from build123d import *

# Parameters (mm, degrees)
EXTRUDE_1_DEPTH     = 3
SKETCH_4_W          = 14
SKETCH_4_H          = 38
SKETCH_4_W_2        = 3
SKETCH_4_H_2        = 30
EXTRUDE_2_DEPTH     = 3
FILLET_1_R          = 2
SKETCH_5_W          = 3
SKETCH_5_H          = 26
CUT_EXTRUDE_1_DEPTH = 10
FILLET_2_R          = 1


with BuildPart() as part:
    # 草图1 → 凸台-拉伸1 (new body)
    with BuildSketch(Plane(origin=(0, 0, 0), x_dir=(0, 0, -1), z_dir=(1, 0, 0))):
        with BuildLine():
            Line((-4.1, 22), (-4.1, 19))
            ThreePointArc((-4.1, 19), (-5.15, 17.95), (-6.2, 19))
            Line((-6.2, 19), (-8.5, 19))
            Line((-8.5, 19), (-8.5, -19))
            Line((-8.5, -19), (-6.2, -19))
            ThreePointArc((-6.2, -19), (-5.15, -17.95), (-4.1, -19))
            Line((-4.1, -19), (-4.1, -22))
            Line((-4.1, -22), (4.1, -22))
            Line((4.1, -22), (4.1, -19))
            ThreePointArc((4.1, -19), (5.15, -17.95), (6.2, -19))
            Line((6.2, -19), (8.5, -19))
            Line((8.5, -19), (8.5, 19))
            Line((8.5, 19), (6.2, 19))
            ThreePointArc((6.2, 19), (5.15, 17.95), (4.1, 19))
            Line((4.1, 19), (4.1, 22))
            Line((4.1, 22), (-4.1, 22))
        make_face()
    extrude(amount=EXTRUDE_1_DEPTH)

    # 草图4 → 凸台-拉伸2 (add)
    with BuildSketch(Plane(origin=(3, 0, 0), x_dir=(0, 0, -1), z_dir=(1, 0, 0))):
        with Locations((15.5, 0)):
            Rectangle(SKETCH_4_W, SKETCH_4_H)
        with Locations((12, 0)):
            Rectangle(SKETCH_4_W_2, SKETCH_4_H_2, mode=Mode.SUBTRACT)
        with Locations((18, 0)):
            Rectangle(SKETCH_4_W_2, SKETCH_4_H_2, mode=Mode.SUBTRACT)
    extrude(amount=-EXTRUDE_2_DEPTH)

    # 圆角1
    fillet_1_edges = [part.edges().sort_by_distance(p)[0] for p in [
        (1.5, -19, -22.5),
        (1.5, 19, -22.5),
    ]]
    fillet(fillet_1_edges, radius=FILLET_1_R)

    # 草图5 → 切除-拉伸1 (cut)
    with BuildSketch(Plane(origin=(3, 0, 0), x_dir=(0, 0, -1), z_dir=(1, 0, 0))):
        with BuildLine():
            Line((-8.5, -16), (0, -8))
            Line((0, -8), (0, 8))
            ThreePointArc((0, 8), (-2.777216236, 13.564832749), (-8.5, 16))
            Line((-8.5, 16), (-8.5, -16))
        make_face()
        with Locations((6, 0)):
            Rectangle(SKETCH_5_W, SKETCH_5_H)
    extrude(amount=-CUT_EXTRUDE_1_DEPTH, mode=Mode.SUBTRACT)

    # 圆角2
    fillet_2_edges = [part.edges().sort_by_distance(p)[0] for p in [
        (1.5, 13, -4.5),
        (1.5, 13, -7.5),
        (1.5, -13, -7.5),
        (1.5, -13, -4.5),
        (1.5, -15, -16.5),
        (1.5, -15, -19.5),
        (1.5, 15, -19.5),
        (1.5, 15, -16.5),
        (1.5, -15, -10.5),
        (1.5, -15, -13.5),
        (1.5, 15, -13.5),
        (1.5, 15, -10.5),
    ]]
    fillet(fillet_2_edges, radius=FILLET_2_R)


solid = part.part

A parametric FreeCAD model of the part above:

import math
import FreeCAD as App
import Part
import Sketcher


def edges_at(feature, points):
    """Names of the edges that pass closest to the given points."""
    edges = feature.Shape.Edges
    near = lambda p: min(range(len(edges)), key=lambda i: edges[i].distToShape(Part.Vertex(*p))[0])
    return sorted({f"Edge{near(p) + 1}" for p in points})

doc = App.newDocument("Part")
body = doc.addObject("PartDesign::Body", "Body")

sketch1 = doc.addObject("Sketcher::SketchObject", "Sketch")
body.addObject(sketch1)
sketch1.AttachmentSupport = (doc.YZ_Plane, [""])
sketch1.MapMode = "FlatFace"
sketch1.addGeometry(Part.LineSegment(App.Vector(22, 4.1, 0), App.Vector(19, 4.1, 0)), False)
sketch1.addGeometry(Part.ArcOfCircle(Part.Circle(App.Vector(19, 5.2, 0), App.Vector(0, 0, 1), 1.1), math.radians(90), math.radians(270)), False)
sketch1.addGeometry(Part.LineSegment(App.Vector(19, 6.2, 0), App.Vector(19, 8.5, 0)), False)
sketch1.addGeometry(Part.LineSegment(App.Vector(19, 8.5, 0), App.Vector(-19, 8.5, 0)), False)
sketch1.addGeometry(Part.LineSegment(App.Vector(-19, 8.5, 0), App.Vector(-19, 6.2, 0)), False)
sketch1.addGeometry(Part.ArcOfCircle(Part.Circle(App.Vector(-19, 5.2, 0), App.Vector(0, 0, 1), 1.1), math.radians(-90), math.radians(90)), False)
sketch1.addGeometry(Part.LineSegment(App.Vector(-19, 4.1, 0), App.Vector(-22, 4.1, 0)), False)
sketch1.addGeometry(Part.LineSegment(App.Vector(-22, 4.1, 0), App.Vector(-22, -4.1, 0)), False)
sketch1.addGeometry(Part.LineSegment(App.Vector(-22, -4.1, 0), App.Vector(-19, -4.1, 0)), False)
sketch1.addGeometry(Part.ArcOfCircle(Part.Circle(App.Vector(-19, -5.2, 0), App.Vector(0, 0, 1), 1.1), math.radians(-90), math.radians(90)), False)
sketch1.addGeometry(Part.LineSegment(App.Vector(-19, -6.2, 0), App.Vector(-19, -8.5, 0)), False)
sketch1.addGeometry(Part.LineSegment(App.Vector(-19, -8.5, 0), App.Vector(19, -8.5, 0)), False)
sketch1.addGeometry(Part.LineSegment(App.Vector(19, -8.5, 0), App.Vector(19, -6.2, 0)), False)
sketch1.addGeometry(Part.ArcOfCircle(Part.Circle(App.Vector(19, -5.2, 0), App.Vector(0, 0, 1), 1.1), math.radians(90), math.radians(270)), False)
sketch1.addGeometry(Part.LineSegment(App.Vector(19, -4.1, 0), App.Vector(22, -4.1, 0)), False)
sketch1.addGeometry(Part.LineSegment(App.Vector(22, -4.1, 0), App.Vector(22, 4.1, 0)), False)
sketch1.addConstraint(Sketcher.Constraint("Tangent", 0, 2, 1, 2))
sketch1.addConstraint(Sketcher.Constraint("Coincident", 1, 1, 2, 1))
sketch1.addConstraint(Sketcher.Constraint("Coincident", 2, 2, 3, 1))
sketch1.addConstraint(Sketcher.Constraint("Coincident", 3, 2, 4, 1))
sketch1.addConstraint(Sketcher.Constraint("Coincident", 4, 2, 5, 2))
sketch1.addConstraint(Sketcher.Constraint("Tangent", 5, 1, 6, 1))
sketch1.addConstraint(Sketcher.Constraint("Coincident", 6, 2, 7, 1))
sketch1.addConstraint(Sketcher.Constraint("Coincident", 7, 2, 8, 1))
sketch1.addConstraint(Sketcher.Constraint("Tangent", 8, 2, 9, 2))
sketch1.addConstraint(Sketcher.Constraint("Coincident", 9, 1, 10, 1))
sketch1.addConstraint(Sketcher.Constraint("Coincident", 10, 2, 11, 1))
sketch1.addConstraint(Sketcher.Constraint("Coincident", 11, 2, 12, 1))
sketch1.addConstraint(Sketcher.Constraint("Coincident", 12, 2, 13, 2))
sketch1.addConstraint(Sketcher.Constraint("Tangent", 13, 1, 14, 1))
sketch1.addConstraint(Sketcher.Constraint("Coincident", 14, 2, 15, 1))
sketch1.addConstraint(Sketcher.Constraint("Coincident", 15, 2, 0, 1))
sketch1.addConstraint(Sketcher.Constraint("Horizontal", 0))
sketch1.addConstraint(Sketcher.Constraint("Vertical", 2))
sketch1.addConstraint(Sketcher.Constraint("Horizontal", 3))
sketch1.addConstraint(Sketcher.Constraint("Vertical", 4))
sketch1.addConstraint(Sketcher.Constraint("Horizontal", 6))
sketch1.addConstraint(Sketcher.Constraint("Vertical", 7))
sketch1.addConstraint(Sketcher.Constraint("Horizontal", 8))
sketch1.addConstraint(Sketcher.Constraint("Vertical", 10))
sketch1.addConstraint(Sketcher.Constraint("Horizontal", 11))
sketch1.addConstraint(Sketcher.Constraint("Vertical", 12))
sketch1.addConstraint(Sketcher.Constraint("Horizontal", 14))
sketch1.addConstraint(Sketcher.Constraint("Vertical", 15))
sketch1.addConstraint(Sketcher.Constraint("Equal", 1, 5))
sketch1.addConstraint(Sketcher.Constraint("Equal", 5, 9))
sketch1.addConstraint(Sketcher.Constraint("Equal", 9, 13))
sketch1.addConstraint(Sketcher.Constraint("Symmetric", 1, 3, 9, 3, -1, 1))
sketch1.addConstraint(Sketcher.Constraint("Symmetric", 5, 3, 13, 3, -1, 1))
sketch1.addConstraint(Sketcher.Constraint("Symmetric", 2, 2, 10, 2, -1, 1))
sketch1.addConstraint(Sketcher.Constraint("Symmetric", 1, 3, 5, 3, -2))
sketch1.addConstraint(Sketcher.Constraint("Vertical", 0, 2, 1, 1))
sketch1.addConstraint(Sketcher.Constraint("Vertical", 9, 3, 3, 2))
sketch1.addConstraint(Sketcher.Constraint("Vertical", 2, 2, 11, 2))
sketch1.addConstraint(Sketcher.Constraint("Equal", 0, 6))
sketch1.addConstraint(Sketcher.Constraint("DistanceX", 0, 2, 0, 1, 3.0))
sketch1.addConstraint(Sketcher.Constraint("DistanceX", 3, 2, 3, 1, 38.0))
sketch1.addConstraint(Sketcher.Constraint("Radius", 1, 1.05))
sketch1.addConstraint(Sketcher.Constraint("DistanceY", 2, 1, 2, 2, 2.3))
sketch1.addConstraint(Sketcher.Constraint("DistanceY", 7, 2, 7, 1, 8.2))
pad1 = doc.addObject("PartDesign::Pad", "Pad")
body.addObject(pad1)
pad1.Profile = sketch1
pad1.Length = 3

sketch2 = doc.addObject("Sketcher::SketchObject", "Sketch001")
body.addObject(sketch2)
sketch2.AttachmentSupport = (doc.YZ_Plane, [""])
sketch2.MapMode = "FlatFace"
sketch2.AttachmentOffset = App.Placement(App.Vector(0, 0, 3), App.Rotation())
sketch2.addGeometry(Part.LineSegment(App.Vector(19, -8.5, 0), App.Vector(-19, -8.5, 0)), False)
sketch2.addGeometry(Part.LineSegment(App.Vector(-19, -8.5, 0), App.Vector(-19, -22.5, 0)), False)
sketch2.addGeometry(Part.LineSegment(App.Vector(-19, -22.5, 0), App.Vector(19, -22.5, 0)), False)
sketch2.addGeometry(Part.LineSegment(App.Vector(19, -22.5, 0), App.Vector(19, -8.5, 0)), False)
sketch2.addGeometry(Part.LineSegment(App.Vector(-15, -13.5, 0), App.Vector(-15, -10.5, 0)), False)
sketch2.addGeometry(Part.LineSegment(App.Vector(-15, -10.5, 0), App.Vector(15, -10.5, 0)), False)
sketch2.addGeometry(Part.LineSegment(App.Vector(15, -10.5, 0), App.Vector(15, -13.5, 0)), False)
sketch2.addGeometry(Part.LineSegment(App.Vector(15, -13.5, 0), App.Vector(-15, -13.5, 0)), False)
sketch2.addGeometry(Part.LineSegment(App.Vector(-15, -19.5, 0), App.Vector(-15, -16.5, 0)), False)
sketch2.addGeometry(Part.LineSegment(App.Vector(-15, -16.5, 0), App.Vector(15, -16.5, 0)), False)
sketch2.addGeometry(Part.LineSegment(App.Vector(15, -16.5, 0), App.Vector(15, -19.5, 0)), False)
sketch2.addGeometry(Part.LineSegment(App.Vector(15, -19.5, 0), App.Vector(-15, -19.5, 0)), False)
sketch2.addConstraint(Sketcher.Constraint("Coincident", 0, 2, 1, 1))
sketch2.addConstraint(Sketcher.Constraint("Coincident", 1, 2, 2, 1))
sketch2.addConstraint(Sketcher.Constraint("Coincident", 2, 2, 3, 1))
sketch2.addConstraint(Sketcher.Constraint("Coincident", 3, 2, 0, 1))
sketch2.addConstraint(Sketcher.Constraint("Coincident", 4, 2, 5, 1))
sketch2.addConstraint(Sketcher.Constraint("Coincident", 5, 2, 6, 1))
sketch2.addConstraint(Sketcher.Constraint("Coincident", 6, 2, 7, 1))
sketch2.addConstraint(Sketcher.Constraint("Coincident", 7, 2, 4, 1))
sketch2.addConstraint(Sketcher.Constraint("Coincident", 8, 2, 9, 1))
sketch2.addConstraint(Sketcher.Constraint("Coincident", 9, 2, 10, 1))
sketch2.addConstraint(Sketcher.Constraint("Coincident", 10, 2, 11, 1))
sketch2.addConstraint(Sketcher.Constraint("Coincident", 11, 2, 8, 1))
sketch2.addConstraint(Sketcher.Constraint("Horizontal", 0))
sketch2.addConstraint(Sketcher.Constraint("Vertical", 1))
sketch2.addConstraint(Sketcher.Constraint("Horizontal", 2))
sketch2.addConstraint(Sketcher.Constraint("Vertical", 3))
sketch2.addConstraint(Sketcher.Constraint("Vertical", 4))
sketch2.addConstraint(Sketcher.Constraint("Horizontal", 5))
sketch2.addConstraint(Sketcher.Constraint("Vertical", 6))
sketch2.addConstraint(Sketcher.Constraint("Horizontal", 7))
sketch2.addConstraint(Sketcher.Constraint("Vertical", 8))
sketch2.addConstraint(Sketcher.Constraint("Horizontal", 9))
sketch2.addConstraint(Sketcher.Constraint("Vertical", 10))
sketch2.addConstraint(Sketcher.Constraint("Horizontal", 11))
sketch2.addConstraint(Sketcher.Constraint("Vertical", 7, 2, 8, 2))
sketch2.addConstraint(Sketcher.Constraint("Vertical", 6, 2, 9, 2))
sketch2.addConstraint(Sketcher.Constraint("Equal", 6, 8))
sketch2.addConstraint(Sketcher.Constraint("DistanceX", 0, 2, 0, 1, 38.0))
sketch2.addConstraint(Sketcher.Constraint("DistanceX", 5, 1, 5, 2, 30.0))
sketch2.addConstraint(Sketcher.Constraint("DistanceY", 1, 2, 1, 1, 14.0))
sketch2.addConstraint(Sketcher.Constraint("DistanceY", 4, 1, 4, 2, 3.0))
sketch2.addConstraint(Sketcher.Constraint("DistanceX", 0, 2, -1, 1, 19.0))
sketch2.addConstraint(Sketcher.Constraint("DistanceX", 4, 2, -1, 1, 15.0))
sketch2.addConstraint(Sketcher.Constraint("DistanceY", 4, 2, 0, 2, 2.0))
sketch2.addConstraint(Sketcher.Constraint("DistanceY", 8, 2, 7, 2, 3.0))
sketch2.addConstraint(Sketcher.Constraint("DistanceY", 0, 2, -1, 1, 8.5))
pad2 = doc.addObject("PartDesign::Pad", "Pad001")
body.addObject(pad2)
pad2.Profile = sketch2
pad2.Length = 3
pad2.Reversed = True
doc.recompute()

fillet = doc.addObject("PartDesign::Fillet", "Fillet")
body.addObject(fillet)
fillet.Base = (pad2, edges_at(pad2, [(1.5, -19, -22.5), (1.5, 19, -22.5)]))
fillet.Radius = 2

sketch3 = doc.addObject("Sketcher::SketchObject", "Sketch002")
body.addObject(sketch3)
sketch3.AttachmentSupport = (doc.YZ_Plane, [""])
sketch3.MapMode = "FlatFace"
sketch3.AttachmentOffset = App.Placement(App.Vector(0, 0, 3), App.Rotation())
sketch3.addGeometry(Part.LineSegment(App.Vector(-16, 8.5, 0), App.Vector(-8, 0, 0)), False)
sketch3.addGeometry(Part.LineSegment(App.Vector(-8, 0, 0), App.Vector(8, 0, 0)), False)
sketch3.addGeometry(Part.ArcOfCircle(Part.Circle(App.Vector(7, 8.9, 0), App.Vector(0, 0, 1), 9), math.radians(-84), math.radians(-3)), False)
sketch3.addGeometry(Part.LineSegment(App.Vector(16, 8.5, 0), App.Vector(-16, 8.5, 0)), False)
sketch3.addGeometry(Part.LineSegment(App.Vector(13, -4.5, 0), App.Vector(-13, -4.5, 0)), False)
sketch3.addGeometry(Part.LineSegment(App.Vector(-13, -4.5, 0), App.Vector(-13, -7.5, 0)), False)
sketch3.addGeometry(Part.LineSegment(App.Vector(-13, -7.5, 0), App.Vector(13, -7.5, 0)), False)
sketch3.addGeometry(Part.LineSegment(App.Vector(13, -7.5, 0), App.Vector(13, -4.5, 0)), False)
sketch3.addConstraint(Sketcher.Constraint("Coincident", 0, 2, 1, 1))
sketch3.addConstraint(Sketcher.Constraint("Coincident", 1, 2, 2, 1))
sketch3.addConstraint(Sketcher.Constraint("Coincident", 2, 2, 3, 1))
sketch3.addConstraint(Sketcher.Constraint("Coincident", 3, 2, 0, 1))
sketch3.addConstraint(Sketcher.Constraint("Coincident", 4, 2, 5, 1))
sketch3.addConstraint(Sketcher.Constraint("Coincident", 5, 2, 6, 1))
sketch3.addConstraint(Sketcher.Constraint("Coincident", 6, 2, 7, 1))
sketch3.addConstraint(Sketcher.Constraint("Coincident", 7, 2, 4, 1))
sketch3.addConstraint(Sketcher.Constraint("Horizontal", 1))
sketch3.addConstraint(Sketcher.Constraint("Horizontal", 3))
sketch3.addConstraint(Sketcher.Constraint("Horizontal", 4))
sketch3.addConstraint(Sketcher.Constraint("Vertical", 5))
sketch3.addConstraint(Sketcher.Constraint("Horizontal", 6))
sketch3.addConstraint(Sketcher.Constraint("Vertical", 7))
sketch3.addConstraint(Sketcher.Constraint("Symmetric", 0, 2, 1, 2, -1, 1))
sketch3.addConstraint(Sketcher.Constraint("Radius", 2, 9.0))
sketch3.addConstraint(Sketcher.Constraint("DistanceX", 1, 1, 1, 2, 16.0))
sketch3.addConstraint(Sketcher.Constraint("DistanceX", 3, 2, 3, 1, 32.0))
sketch3.addConstraint(Sketcher.Constraint("DistanceX", 4, 2, 4, 1, 26.0))
sketch3.addConstraint(Sketcher.Constraint("DistanceY", 5, 2, 5, 1, 3.0))
sketch3.addConstraint(Sketcher.Constraint("DistanceX", -1, 1, 2, 2, 16.0))
sketch3.addConstraint(Sketcher.Constraint("DistanceX", 4, 2, -1, 1, 13.0))
sketch3.addConstraint(Sketcher.Constraint("DistanceY", 4, 2, 3, 2, 13.0))
sketch3.addConstraint(Sketcher.Constraint("DistanceY", -1, 1, 2, 2, 8.5))
pocket1 = doc.addObject("PartDesign::Pocket", "Pocket")
body.addObject(pocket1)
pocket1.Profile = sketch3
pocket1.Length = 10
doc.recompute()

fillet2 = doc.addObject("PartDesign::Fillet", "Fillet001")
body.addObject(fillet2)
fillet2.Base = (pocket1, edges_at(pocket1, [
    (1.5, 13, -4.5),
    (1.5, 13, -7.5),
    (1.5, -13, -7.5),
    (1.5, -13, -4.5),
    (1.5, -15, -16.5),
    (1.5, -15, -19.5),
    (1.5, 15, -19.5),
    (1.5, 15, -16.5),
    (1.5, -15, -10.5),
    (1.5, -15, -13.5),
    (1.5, 15, -13.5),
    (1.5, 15, -10.5),
]))
fillet2.Radius = 1

doc.recompute()
